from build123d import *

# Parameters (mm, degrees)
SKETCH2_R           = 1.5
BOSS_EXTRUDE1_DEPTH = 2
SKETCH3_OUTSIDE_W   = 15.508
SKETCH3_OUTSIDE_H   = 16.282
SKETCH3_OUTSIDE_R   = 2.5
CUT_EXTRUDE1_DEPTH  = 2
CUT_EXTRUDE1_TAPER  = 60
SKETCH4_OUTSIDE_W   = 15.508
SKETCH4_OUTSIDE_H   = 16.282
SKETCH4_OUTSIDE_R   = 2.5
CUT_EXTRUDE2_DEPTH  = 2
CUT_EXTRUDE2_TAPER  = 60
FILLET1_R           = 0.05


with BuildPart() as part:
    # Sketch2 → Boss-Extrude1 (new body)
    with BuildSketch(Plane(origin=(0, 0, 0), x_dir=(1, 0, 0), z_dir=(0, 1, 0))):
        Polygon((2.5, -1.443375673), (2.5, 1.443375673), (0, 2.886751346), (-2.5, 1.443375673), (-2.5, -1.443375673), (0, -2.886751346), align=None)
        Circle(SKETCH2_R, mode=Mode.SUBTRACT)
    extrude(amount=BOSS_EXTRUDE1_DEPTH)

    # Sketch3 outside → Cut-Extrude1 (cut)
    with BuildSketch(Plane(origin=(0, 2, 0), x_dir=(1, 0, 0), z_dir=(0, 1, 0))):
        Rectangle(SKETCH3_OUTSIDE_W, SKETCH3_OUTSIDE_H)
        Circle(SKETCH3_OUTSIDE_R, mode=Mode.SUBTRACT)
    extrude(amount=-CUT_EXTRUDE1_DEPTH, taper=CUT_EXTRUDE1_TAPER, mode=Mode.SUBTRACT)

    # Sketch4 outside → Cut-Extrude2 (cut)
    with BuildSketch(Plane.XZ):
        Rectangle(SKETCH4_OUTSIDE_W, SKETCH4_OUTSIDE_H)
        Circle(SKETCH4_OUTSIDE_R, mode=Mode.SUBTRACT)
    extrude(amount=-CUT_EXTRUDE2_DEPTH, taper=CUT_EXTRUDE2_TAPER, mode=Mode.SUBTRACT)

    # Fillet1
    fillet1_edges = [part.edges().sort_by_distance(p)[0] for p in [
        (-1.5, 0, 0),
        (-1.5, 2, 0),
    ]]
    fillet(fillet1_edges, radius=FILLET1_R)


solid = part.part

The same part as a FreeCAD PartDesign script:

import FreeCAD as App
import Part
import Sketcher
Q = App.Units.Quantity


def edges_at(feature, points):
    """Names of the edges that pass closest to the given points."""
    edges = feature.Shape.Edges
    near = lambda p: min(range(len(edges)), key=lambda i: edges[i].distToShape(Part.Vertex(*p))[0])
    return sorted({f"Edge{near(p) + 1}" for p in points})

doc = App.newDocument("Part")
body = doc.addObject("PartDesign::Body", "Body")

# Sketch on XZ plane
sketch1 = body.newObject("Sketcher::SketchObject", "Sketch")
sketch1.AttachmentSupport = (doc.getObject("XZ_Plane"), [""])
sketch1.MapMode = "FlatFace"
sketch1.addGeometry([
    Part.LineSegment(App.Vector(2.5, 1.443376, 0), App.Vector(2.5, -1.443376, 0)),  # 0
    Part.LineSegment(App.Vector(2.5, -1.443376, 0), App.Vector(0, -2.886751, 0)),  # 1
    Part.LineSegment(App.Vector(0, -2.886751, 0), App.Vector(-2.5, -1.443376, 0)),  # 2
    Part.LineSegment(App.Vector(-2.5, -1.443376, 0), App.Vector(-2.5, 1.443376, 0)),  # 3
    Part.LineSegment(App.Vector(-2.5, 1.443376, 0), App.Vector(0, 2.886751, 0)),  # 4
    Part.LineSegment(App.Vector(0, 2.886751, 0), App.Vector(2.5, 1.443376, 0)),  # 5
    Part.Circle(App.Vector(0, 0, 0), App.Vector(0, 0, 1), 1.5),  # 6
], False)
sketch1.addConstraint([
    Sketcher.Constraint("Coincident", 0, 2, 1, 1),
    Sketcher.Constraint("Coincident", 1, 2, 2, 1),
    Sketcher.Constraint("Coincident", 2, 2, 3, 1),
    Sketcher.Constraint("Coincident", 3, 2, 4, 1),
    Sketcher.Constraint("Coincident", 4, 2, 5, 1),
    Sketcher.Constraint("Coincident", 5, 2, 0, 1),
    Sketcher.Constraint("Vertical", 0),
    Sketcher.Constraint("Vertical", 3),
    Sketcher.Constraint("Coincident", 6, 3, -1, 1),
    Sketcher.Constraint("Symmetric", 0, 2, 3, 2, -1, 1),
    Sketcher.Constraint("Symmetric", 1, 2, 4, 2, -1, 1),
    Sketcher.Constraint("PointOnObject", 1, 2, -2),
    Sketcher.Constraint("Parallel", 2, 5),
    Sketcher.Constraint("Horizontal", 0, 2, 2, 2),
    Sketcher.Constraint("Diameter", 6, 3.0),
    Sketcher.Constraint("Angle", 1, Q("-150 deg")),
    Sketcher.Constraint("DistanceX", 2, 2, 0, 2, 5.0),
    Sketcher.Constraint("DistanceY", 0, 2, 0, 1, 2.886751),
])
pad1 = body.newObject("PartDesign::Pad", "Pad")
pad1.Profile = sketch1
pad1.Length = 2
pad1.Reversed = True

# Sketch on XZ plane
sketch2 = body.newObject("Sketcher::SketchObject", "Sketch001")
sketch2.AttachmentSupport = (doc.getObject("XZ_Plane"), [""])
sketch2.MapMode = "FlatFace"
sketch2.AttachmentOffset = App.Placement(App.Vector(0, 0, -2), App.Rotation())
sketch2.addGeometry([
    Part.LineSegment(App.Vector(-7.754, -8.141, 0), App.Vector(-7.754, 8.141, 0)),  # 0
    Part.LineSegment(App.Vector(-7.754, 8.141, 0), App.Vector(7.754, 8.141, 0)),  # 1
    Part.LineSegment(App.Vector(7.754, 8.141, 0), App.Vector(7.754, -8.141, 0)),  # 2
    Part.LineSegment(App.Vector(7.754, -8.141, 0), App.Vector(-7.754, -8.141, 0)),  # 3
    Part.Circle(App.Vector(0, 0, 0), App.Vector(0, 0, 1), 2.5),  # 4
], False)
sketch2.addConstraint([
    Sketcher.Constraint("Coincident", 0, 2, 1, 1),
    Sketcher.Constraint("Coincident", 1, 2, 2, 1),
    Sketcher.Constraint("Coincident", 2, 2, 3, 1),
    Sketcher.Constraint("Coincident", 3, 2, 0, 1),
    Sketcher.Constraint("Vertical", 0),
    Sketcher.Constraint("Horizontal", 1),
    Sketcher.Constraint("Vertical", 2),
    Sketcher.Constraint("Horizontal", 3),
    Sketcher.Constraint("Coincident", 4, 3, -1, 1),
    Sketcher.Constraint("Symmetric", 0, 2, 2, 2, -1, 1),
    Sketcher.Constraint("Diameter", 4, 5.0),
    Sketcher.Constraint("DistanceX", 1, 1, 1, 2, 15.508),
    Sketcher.Constraint("DistanceY", 0, 1, 0, 2, 16.282),
])
pocket1 = body.newObject("PartDesign::Pocket", "Pocket")
pocket1.Profile = sketch2
pocket1.Length = 2
pocket1.Reversed = True
pocket1.TaperAngle = 60

# Sketch on XZ plane
sketch3 = body.newObject("Sketcher::SketchObject", "Sketch002")
sketch3.AttachmentSupport = (doc.getObject("XZ_Plane"), [""])
sketch3.MapMode = "FlatFace"
sketch3.addGeometry([
    Part.LineSegment(App.Vector(-7.754, 8.141, 0), App.Vector(-7.754, -8.141, 0)),  # 0
    Part.LineSegment(App.Vector(-7.754, -8.141, 0), App.Vector(7.754, -8.141, 0)),  # 1
    Part.LineSegment(App.Vector(7.754, -8.141, 0), App.Vector(7.754, 8.141, 0)),  # 2
    Part.LineSegment(App.Vector(7.754, 8.141, 0), App.Vector(-7.754, 8.141, 0)),  # 3
    Part.Circle(App.Vector(0, 0, 0), App.Vector(0, 0, 1), 2.5),  # 4
], False)
sketch3.addConstraint([
    Sketcher.Constraint("Coincident", 0, 2, 1, 1),
    Sketcher.Constraint("Coincident", 1, 2, 2, 1),
    Sketcher.Constraint("Coincident", 2, 2, 3, 1),
    Sketcher.Constraint("Coincident", 3, 2, 0, 1),
    Sketcher.Constraint("Vertical", 0),
    Sketcher.Constraint("Horizontal", 1),
    Sketcher.Constraint("Vertical", 2),
    Sketcher.Constraint("Horizontal", 3),
    Sketcher.Constraint("Coincident", 4, 3, -1, 1),
    Sketcher.Constraint("Symmetric", 0, 2, 2, 2, -1, 1),
    Sketcher.Constraint("Diameter", 4, 5.0),
    Sketcher.Constraint("DistanceX", 1, 1, 1, 2, 15.508),
    Sketcher.Constraint("DistanceY", 0, 2, 0, 1, 16.282),
])
pocket2 = body.newObject("PartDesign::Pocket", "Pocket001")
pocket2.Profile = sketch3
pocket2.Length = 2
pocket2.TaperAngle = 60
doc.recompute()

fillet = body.newObject("PartDesign::Fillet", "Fillet")
fillet.Base = (pocket2, edges_at(pocket2, [(-1.5, 0, 0), (-1.5, 2, 0)]))
fillet.Radius = 0.05

doc.recompute()
